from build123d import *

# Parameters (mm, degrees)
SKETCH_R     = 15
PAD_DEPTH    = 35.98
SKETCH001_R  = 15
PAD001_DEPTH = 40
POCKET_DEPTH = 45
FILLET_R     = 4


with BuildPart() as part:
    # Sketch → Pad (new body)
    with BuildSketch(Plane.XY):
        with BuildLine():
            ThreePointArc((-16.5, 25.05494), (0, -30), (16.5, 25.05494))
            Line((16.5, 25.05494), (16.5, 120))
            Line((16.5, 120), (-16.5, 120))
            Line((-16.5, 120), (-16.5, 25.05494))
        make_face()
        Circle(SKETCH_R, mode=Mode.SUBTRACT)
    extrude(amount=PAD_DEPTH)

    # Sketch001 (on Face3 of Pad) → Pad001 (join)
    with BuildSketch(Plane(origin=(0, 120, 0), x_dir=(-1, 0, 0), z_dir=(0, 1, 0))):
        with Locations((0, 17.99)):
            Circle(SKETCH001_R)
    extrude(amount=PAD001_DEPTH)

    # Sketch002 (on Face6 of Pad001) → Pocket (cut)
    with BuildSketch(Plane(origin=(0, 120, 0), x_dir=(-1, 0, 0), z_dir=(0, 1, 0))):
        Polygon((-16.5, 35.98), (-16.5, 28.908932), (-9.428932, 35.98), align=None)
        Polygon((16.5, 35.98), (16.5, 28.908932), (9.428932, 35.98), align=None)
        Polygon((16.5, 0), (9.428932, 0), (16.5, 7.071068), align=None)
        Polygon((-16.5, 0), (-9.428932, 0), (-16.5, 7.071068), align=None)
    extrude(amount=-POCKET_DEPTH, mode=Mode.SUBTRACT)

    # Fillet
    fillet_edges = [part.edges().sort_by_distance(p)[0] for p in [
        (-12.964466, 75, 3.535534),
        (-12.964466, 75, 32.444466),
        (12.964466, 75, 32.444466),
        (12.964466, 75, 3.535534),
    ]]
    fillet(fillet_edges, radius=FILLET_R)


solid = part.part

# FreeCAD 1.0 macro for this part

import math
import FreeCAD as App
import Part
import Sketcher
from FreeCAD import Vector
Q = App.Units.Quantity


def edges_at(feature, points):
    """Names of the edges that pass closest to the given points."""
    edges = feature.Shape.Edges
    near = lambda p: min(range(len(edges)), key=lambda i: edges[i].distToShape(Part.Vertex(*p))[0])
    return sorted({f"Edge{near(p) + 1}" for p in points})


def add_polygon(sketch, points):
    """Adds a closed chain of lines whose ends are joined by coincident constraints."""
    first, n = sketch.GeometryCount, len(points)
    for a, b in zip(points, points[1:] + points[:1]):
        sketch.addGeometry(Part.LineSegment(App.Vector(*a, 0), App.Vector(*b, 0)), False)
    for i in range(n):
        sketch.addConstraint(Sketcher.Constraint("Coincident", first + i, 2, first + (i + 1) % n, 1))

doc = App.newDocument("Part")
params = doc.addObject("Spreadsheet::Sheet", "Params")
for row, (alias, value) in enumerate([
    ("sketch1_diameter", "30 mm"),
    ("sketch1_radius", "30 mm"),
    ("sketch1_width", "33 mm"),
    ("pad1_length", "35.98 mm"),
    ("sketch2_diameter", "30 mm"),
    ("pad2_length", "40 mm"),
    ("sketch3_length", "10 mm"),
    ("pocket1_length", "45 mm"),
    ("fillet_radius", "4 mm"),
], start=1):
    params.set(f"A{row}", alias)
    params.set(f"B{row}", "=" + value)
    params.setAlias(f"B{row}", alias)

body = doc.addObject("PartDesign::Body", "Body")

# Sketch on XY plane
sketch1 = body.newObject("Sketcher::SketchObject", "Sketch")
sketch1.AttachmentSupport = (doc.getObject("XY_Plane"), [""])
sketch1.MapMode = "FlatFace"
sketch1.addGeometry(Part.ArcOfCircle(Part.Circle(Vector(0, 0, 0), Vector(0, 0, 1), 30), math.radians(123.367013), math.radians(416.632987)), False)
sketch1.addGeometry(Part.LineSegment(Vector(16.5, 25.05494, 0), Vector(16.5, 120, 0)), False)
sketch1.addGeometry(Part.LineSegment(Vector(16.5, 120, 0), Vector(-16.5, 120, 0)), False)
sketch1.addGeometry(Part.LineSegment(Vector(-16.5, 120, 0), Vector(-16.5, 25.05494, 0)), False)
sketch1.addGeometry(Part.Circle(Vector(0, 0, 0), Vector(0, 0, 1), 15), False)
sketch1.addConstraint(Sketcher.Constraint("Coincident", 0, 2, 1, 1))
sketch1.addConstraint(Sketcher.Constraint("Coincident", 1, 2, 2, 1))
sketch1.addConstraint(Sketcher.Constraint("Coincident", 2, 2, 3, 1))
sketch1.addConstraint(Sketcher.Constraint("Coincident", 3, 2, 0, 1))
sketch1.addConstraint(Sketcher.Constraint("Vertical", 1))
sketch1.addConstraint(Sketcher.Constraint("Horizontal", 2))
sketch1.addConstraint(Sketcher.Constraint("Vertical", 3))
sketch1.addConstraint(Sketcher.Constraint("Coincident", 0, 3, -1, 1))
sketch1.addConstraint(Sketcher.Constraint("Coincident", 4, 3, -1, 1))
sketch1.addConstraint(Sketcher.Constraint("Horizontal", 0, 2, 3, 2))
sketch1.addConstraint(Sketcher.Constraint("Diameter", 4, Q("30 mm")))
sketch1.addConstraint(Sketcher.Constraint("Radius", 0, Q("30 mm")))
sketch1.addConstraint(Sketcher.Constraint("DistanceX", 2, 2, 2, 1, Q("33 mm")))
sketch1.addConstraint(Sketcher.Constraint("DistanceY", -1, 1, 1, 2, Q("120 mm")))
sketch1.setExpression("Constraints[10]", "Params.sketch1_diameter")
sketch1.setExpression("Constraints[11]", "Params.sketch1_radius")
sketch1.setExpression("Constraints[12]", "Params.sketch1_width")
pad1 = body.newObject("PartDesign::Pad", "Pad")
pad1.Profile = sketch1
pad1.setExpression("Length", "Params.pad1_length")

# Sketch on XZ plane
sketch2 = body.newObject("Sketcher::SketchObject", "Sketch001")
sketch2.AttachmentSupport = (doc.getObject("XZ_Plane"), [""])
sketch2.MapMode = "FlatFace"
sketch2.AttachmentOffset = App.Placement(Vector(0, 0, -120), App.Rotation())
sketch2.addGeometry(Part.Circle(Vector(0, 17.99, 0), Vector(0, 0, 1), 15), False)
sketch2.addConstraint(Sketcher.Constraint("PointOnObject", 0, 3, -2))
sketch2.addConstraint(Sketcher.Constraint("Diameter", 0, Q("30 mm")))
sketch2.addConstraint(Sketcher.Constraint("DistanceY", -1, 1, 0, 3, Q("17.99 mm")))
sketch2.setExpression("Constraints[1]", "Params.sketch2_diameter")
pad2 = body.newObject("PartDesign::Pad", "Pad001")
pad2.Profile = sketch2
pad2.setExpression("Length", "Params.pad2_length")
pad2.Reversed = True

# Sketch on XZ plane
sketch3 = body.newObject("Sketcher::SketchObject", "Sketch002")
sketch3.AttachmentSupport = (doc.getObject("XZ_Plane"), [""])
sketch3.MapMode = "FlatFace"
sketch3.AttachmentOffset = App.Placement(Vector(0, 0, -120), App.Rotation())
add_polygon(sketch3, [(16.5, 35.98), (16.5, 28.908932), (9.428932, 35.98)])  # lines 0-2
add_polygon(sketch3, [(-16.5, 28.908932), (-16.5, 35.98), (-9.428932, 35.98)])  # lines 3-5
add_polygon(sketch3, [(-9.428932, 0), (-16.5, 0), (-16.5, 7.071068)])  # lines 6-8
add_polygon(sketch3, [(16.5, 0), (9.428932, 0), (16.5, 7.071068)])  # lines 9-11
sketch3.addConstraint(Sketcher.Constraint("Vertical", 0))
sketch3.addConstraint(Sketcher.Constraint("Horizontal", 2))
sketch3.addConstraint(Sketcher.Constraint("Vertical", 3))
sketch3.addConstraint(Sketcher.Constraint("Horizontal", 4))
sketch3.addConstraint(Sketcher.Constraint("Horizontal", 6))
sketch3.addConstraint(Sketcher.Constraint("Vertical", 7))
sketch3.addConstraint(Sketcher.Constraint("Horizontal", 9))
sketch3.addConstraint(Sketcher.Constraint("Vertical", 11))
sketch3.addConstraint(Sketcher.Constraint("Symmetric", 8, 2, 9, 2, -1, 1))
sketch3.addConstraint(Sketcher.Constraint("Symmetric", 2, 2, 3, 2, -2))
sketch3.addConstraint(Sketcher.Constraint("Symmetric", 7, 2, 10, 2, -2))
sketch3.addConstraint(Sketcher.Constraint("PointOnObject", 6, 2, -1))
sketch3.addConstraint(Sketcher.Constraint("Perpendicular", 1, 5))
sketch3.addConstraint(Sketcher.Constraint("Perpendicular", 5, 8))
sketch3.addConstraint(Sketcher.Constraint("Perpendicular", 8, 10))
sketch3.addConstraint(Sketcher.Constraint("Horizontal", 0, 2, 5, 2))
sketch3.addConstraint(Sketcher.Constraint("Vertical", 5, 2, 6, 2))
sketch3.addConstraint(Sketcher.Constraint("Vertical", 4, 2, 8, 2))
sketch3.addConstraint(Sketcher.Constraint("Distance", 1, Q("10 mm")))
sketch3.addConstraint(Sketcher.Constraint("DistanceX", 3, 2, 2, 2, Q("33 mm")))
sketch3.addConstraint(Sketcher.Constraint("DistanceY", -1, 1, 1, 2, Q("35.98 mm")))
sketch3.setExpression("Constraints[30]", "Params.sketch3_length")
pocket1 = body.newObject("PartDesign::Pocket", "Pocket")
pocket1.Profile = sketch3
pocket1.setExpression("Length", "Params.pocket1_length")
pocket1.Reversed = True
doc.recompute()

fillet = body.newObject("PartDesign::Fillet", "Fillet")
fillet.Base = (pocket1, edges_at(pocket1, [
    (-12.964, 75, 3.536),
    (-12.964, 75, 32.444),
    (12.964, 75, 32.444),
    (12.964, 75, 3.536),
]))
fillet.setExpression("Radius", "Params.fillet_radius")

doc.recompute()
